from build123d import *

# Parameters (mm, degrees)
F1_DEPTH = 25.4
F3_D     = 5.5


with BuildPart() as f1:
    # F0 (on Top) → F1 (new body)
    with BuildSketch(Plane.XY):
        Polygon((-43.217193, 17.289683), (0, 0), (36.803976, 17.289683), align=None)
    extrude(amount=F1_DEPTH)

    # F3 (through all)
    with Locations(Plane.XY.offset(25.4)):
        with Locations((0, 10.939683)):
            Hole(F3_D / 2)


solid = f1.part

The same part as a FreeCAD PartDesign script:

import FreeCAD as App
import Part
import Sketcher

V = App.Vector
Q = App.Units.Quantity


def add_polygon(sketch, points):
    """Adds a closed chain of lines whose ends are joined by coincident constraints."""
    first, n = sketch.GeometryCount, len(points)
    for a, b in zip(points, points[1:] + points[:1]):
        sketch.addGeometry(Part.LineSegment(App.Vector(*a, 0), App.Vector(*b, 0)), False)
    for i in range(n):
        sketch.addConstraint(Sketcher.Constraint("Coincident", first + i, 2, first + (i + 1) % n, 1))

doc = App.newDocument("Part")
body = doc.addObject("PartDesign::Body", "Body")

# Sketch on XY plane
sketch1 = doc.addObject("Sketcher::SketchObject", "Sketch")
body.addObject(sketch1)
sketch1.AttachmentSupport = (doc.XY_Plane, [""])
sketch1.MapMode = "FlatFace"
add_polygon(sketch1, [(-43.217193, 17.289683), (0, 0), (36.803976, 17.289683)])  # lines 0-2
sketch1.addConstraint([
    Sketcher.Constraint("Horizontal", 2),
    Sketcher.Constraint("Coincident", 0, 2, -1, 1),
    Sketcher.Constraint("DistanceX", 2, 2, 2, 1, Q("80.021169 mm")),
    Sketcher.Constraint("Distance", 1, Q("40.662831 mm")),
    Sketcher.Constraint("Distance", 0, Q("46.547383 mm")),
])
pad1 = doc.addObject("PartDesign::Pad", "Pad")
body.addObject(pad1)
pad1.Profile = sketch1
pad1.Length = 25.4

# Sketch on XY plane
sketch2 = doc.addObject("Sketcher::SketchObject", "Sketch001")
body.addObject(sketch2)
sketch2.AttachmentSupport = (doc.XY_Plane, [""])
sketch2.MapMode = "FlatFace"
sketch2.AttachmentOffset = App.Placement(V(0, 0, 25.4), App.Rotation())
sketch2.addGeometry(Part.Circle(V(0, 10.939683, 0), V(0, 0, 1), 2.75), False)
sketch2.addConstraint([
    Sketcher.Constraint("PointOnObject", 0, 3, -2),
    Sketcher.Constraint("Diameter", 0, Q("5.5 mm")),
    Sketcher.Constraint("DistanceY", -1, 1, 0, 3, Q("10.939683 mm")),
])
doc.recompute()
hole = doc.addObject("PartDesign::Hole", "Hole")
body.addObject(hole)
hole.Profile = sketch2
hole.ThreadType = "None"
hole.Diameter = 5.5
hole.DepthType = "ThroughAll"

doc.recompute()
